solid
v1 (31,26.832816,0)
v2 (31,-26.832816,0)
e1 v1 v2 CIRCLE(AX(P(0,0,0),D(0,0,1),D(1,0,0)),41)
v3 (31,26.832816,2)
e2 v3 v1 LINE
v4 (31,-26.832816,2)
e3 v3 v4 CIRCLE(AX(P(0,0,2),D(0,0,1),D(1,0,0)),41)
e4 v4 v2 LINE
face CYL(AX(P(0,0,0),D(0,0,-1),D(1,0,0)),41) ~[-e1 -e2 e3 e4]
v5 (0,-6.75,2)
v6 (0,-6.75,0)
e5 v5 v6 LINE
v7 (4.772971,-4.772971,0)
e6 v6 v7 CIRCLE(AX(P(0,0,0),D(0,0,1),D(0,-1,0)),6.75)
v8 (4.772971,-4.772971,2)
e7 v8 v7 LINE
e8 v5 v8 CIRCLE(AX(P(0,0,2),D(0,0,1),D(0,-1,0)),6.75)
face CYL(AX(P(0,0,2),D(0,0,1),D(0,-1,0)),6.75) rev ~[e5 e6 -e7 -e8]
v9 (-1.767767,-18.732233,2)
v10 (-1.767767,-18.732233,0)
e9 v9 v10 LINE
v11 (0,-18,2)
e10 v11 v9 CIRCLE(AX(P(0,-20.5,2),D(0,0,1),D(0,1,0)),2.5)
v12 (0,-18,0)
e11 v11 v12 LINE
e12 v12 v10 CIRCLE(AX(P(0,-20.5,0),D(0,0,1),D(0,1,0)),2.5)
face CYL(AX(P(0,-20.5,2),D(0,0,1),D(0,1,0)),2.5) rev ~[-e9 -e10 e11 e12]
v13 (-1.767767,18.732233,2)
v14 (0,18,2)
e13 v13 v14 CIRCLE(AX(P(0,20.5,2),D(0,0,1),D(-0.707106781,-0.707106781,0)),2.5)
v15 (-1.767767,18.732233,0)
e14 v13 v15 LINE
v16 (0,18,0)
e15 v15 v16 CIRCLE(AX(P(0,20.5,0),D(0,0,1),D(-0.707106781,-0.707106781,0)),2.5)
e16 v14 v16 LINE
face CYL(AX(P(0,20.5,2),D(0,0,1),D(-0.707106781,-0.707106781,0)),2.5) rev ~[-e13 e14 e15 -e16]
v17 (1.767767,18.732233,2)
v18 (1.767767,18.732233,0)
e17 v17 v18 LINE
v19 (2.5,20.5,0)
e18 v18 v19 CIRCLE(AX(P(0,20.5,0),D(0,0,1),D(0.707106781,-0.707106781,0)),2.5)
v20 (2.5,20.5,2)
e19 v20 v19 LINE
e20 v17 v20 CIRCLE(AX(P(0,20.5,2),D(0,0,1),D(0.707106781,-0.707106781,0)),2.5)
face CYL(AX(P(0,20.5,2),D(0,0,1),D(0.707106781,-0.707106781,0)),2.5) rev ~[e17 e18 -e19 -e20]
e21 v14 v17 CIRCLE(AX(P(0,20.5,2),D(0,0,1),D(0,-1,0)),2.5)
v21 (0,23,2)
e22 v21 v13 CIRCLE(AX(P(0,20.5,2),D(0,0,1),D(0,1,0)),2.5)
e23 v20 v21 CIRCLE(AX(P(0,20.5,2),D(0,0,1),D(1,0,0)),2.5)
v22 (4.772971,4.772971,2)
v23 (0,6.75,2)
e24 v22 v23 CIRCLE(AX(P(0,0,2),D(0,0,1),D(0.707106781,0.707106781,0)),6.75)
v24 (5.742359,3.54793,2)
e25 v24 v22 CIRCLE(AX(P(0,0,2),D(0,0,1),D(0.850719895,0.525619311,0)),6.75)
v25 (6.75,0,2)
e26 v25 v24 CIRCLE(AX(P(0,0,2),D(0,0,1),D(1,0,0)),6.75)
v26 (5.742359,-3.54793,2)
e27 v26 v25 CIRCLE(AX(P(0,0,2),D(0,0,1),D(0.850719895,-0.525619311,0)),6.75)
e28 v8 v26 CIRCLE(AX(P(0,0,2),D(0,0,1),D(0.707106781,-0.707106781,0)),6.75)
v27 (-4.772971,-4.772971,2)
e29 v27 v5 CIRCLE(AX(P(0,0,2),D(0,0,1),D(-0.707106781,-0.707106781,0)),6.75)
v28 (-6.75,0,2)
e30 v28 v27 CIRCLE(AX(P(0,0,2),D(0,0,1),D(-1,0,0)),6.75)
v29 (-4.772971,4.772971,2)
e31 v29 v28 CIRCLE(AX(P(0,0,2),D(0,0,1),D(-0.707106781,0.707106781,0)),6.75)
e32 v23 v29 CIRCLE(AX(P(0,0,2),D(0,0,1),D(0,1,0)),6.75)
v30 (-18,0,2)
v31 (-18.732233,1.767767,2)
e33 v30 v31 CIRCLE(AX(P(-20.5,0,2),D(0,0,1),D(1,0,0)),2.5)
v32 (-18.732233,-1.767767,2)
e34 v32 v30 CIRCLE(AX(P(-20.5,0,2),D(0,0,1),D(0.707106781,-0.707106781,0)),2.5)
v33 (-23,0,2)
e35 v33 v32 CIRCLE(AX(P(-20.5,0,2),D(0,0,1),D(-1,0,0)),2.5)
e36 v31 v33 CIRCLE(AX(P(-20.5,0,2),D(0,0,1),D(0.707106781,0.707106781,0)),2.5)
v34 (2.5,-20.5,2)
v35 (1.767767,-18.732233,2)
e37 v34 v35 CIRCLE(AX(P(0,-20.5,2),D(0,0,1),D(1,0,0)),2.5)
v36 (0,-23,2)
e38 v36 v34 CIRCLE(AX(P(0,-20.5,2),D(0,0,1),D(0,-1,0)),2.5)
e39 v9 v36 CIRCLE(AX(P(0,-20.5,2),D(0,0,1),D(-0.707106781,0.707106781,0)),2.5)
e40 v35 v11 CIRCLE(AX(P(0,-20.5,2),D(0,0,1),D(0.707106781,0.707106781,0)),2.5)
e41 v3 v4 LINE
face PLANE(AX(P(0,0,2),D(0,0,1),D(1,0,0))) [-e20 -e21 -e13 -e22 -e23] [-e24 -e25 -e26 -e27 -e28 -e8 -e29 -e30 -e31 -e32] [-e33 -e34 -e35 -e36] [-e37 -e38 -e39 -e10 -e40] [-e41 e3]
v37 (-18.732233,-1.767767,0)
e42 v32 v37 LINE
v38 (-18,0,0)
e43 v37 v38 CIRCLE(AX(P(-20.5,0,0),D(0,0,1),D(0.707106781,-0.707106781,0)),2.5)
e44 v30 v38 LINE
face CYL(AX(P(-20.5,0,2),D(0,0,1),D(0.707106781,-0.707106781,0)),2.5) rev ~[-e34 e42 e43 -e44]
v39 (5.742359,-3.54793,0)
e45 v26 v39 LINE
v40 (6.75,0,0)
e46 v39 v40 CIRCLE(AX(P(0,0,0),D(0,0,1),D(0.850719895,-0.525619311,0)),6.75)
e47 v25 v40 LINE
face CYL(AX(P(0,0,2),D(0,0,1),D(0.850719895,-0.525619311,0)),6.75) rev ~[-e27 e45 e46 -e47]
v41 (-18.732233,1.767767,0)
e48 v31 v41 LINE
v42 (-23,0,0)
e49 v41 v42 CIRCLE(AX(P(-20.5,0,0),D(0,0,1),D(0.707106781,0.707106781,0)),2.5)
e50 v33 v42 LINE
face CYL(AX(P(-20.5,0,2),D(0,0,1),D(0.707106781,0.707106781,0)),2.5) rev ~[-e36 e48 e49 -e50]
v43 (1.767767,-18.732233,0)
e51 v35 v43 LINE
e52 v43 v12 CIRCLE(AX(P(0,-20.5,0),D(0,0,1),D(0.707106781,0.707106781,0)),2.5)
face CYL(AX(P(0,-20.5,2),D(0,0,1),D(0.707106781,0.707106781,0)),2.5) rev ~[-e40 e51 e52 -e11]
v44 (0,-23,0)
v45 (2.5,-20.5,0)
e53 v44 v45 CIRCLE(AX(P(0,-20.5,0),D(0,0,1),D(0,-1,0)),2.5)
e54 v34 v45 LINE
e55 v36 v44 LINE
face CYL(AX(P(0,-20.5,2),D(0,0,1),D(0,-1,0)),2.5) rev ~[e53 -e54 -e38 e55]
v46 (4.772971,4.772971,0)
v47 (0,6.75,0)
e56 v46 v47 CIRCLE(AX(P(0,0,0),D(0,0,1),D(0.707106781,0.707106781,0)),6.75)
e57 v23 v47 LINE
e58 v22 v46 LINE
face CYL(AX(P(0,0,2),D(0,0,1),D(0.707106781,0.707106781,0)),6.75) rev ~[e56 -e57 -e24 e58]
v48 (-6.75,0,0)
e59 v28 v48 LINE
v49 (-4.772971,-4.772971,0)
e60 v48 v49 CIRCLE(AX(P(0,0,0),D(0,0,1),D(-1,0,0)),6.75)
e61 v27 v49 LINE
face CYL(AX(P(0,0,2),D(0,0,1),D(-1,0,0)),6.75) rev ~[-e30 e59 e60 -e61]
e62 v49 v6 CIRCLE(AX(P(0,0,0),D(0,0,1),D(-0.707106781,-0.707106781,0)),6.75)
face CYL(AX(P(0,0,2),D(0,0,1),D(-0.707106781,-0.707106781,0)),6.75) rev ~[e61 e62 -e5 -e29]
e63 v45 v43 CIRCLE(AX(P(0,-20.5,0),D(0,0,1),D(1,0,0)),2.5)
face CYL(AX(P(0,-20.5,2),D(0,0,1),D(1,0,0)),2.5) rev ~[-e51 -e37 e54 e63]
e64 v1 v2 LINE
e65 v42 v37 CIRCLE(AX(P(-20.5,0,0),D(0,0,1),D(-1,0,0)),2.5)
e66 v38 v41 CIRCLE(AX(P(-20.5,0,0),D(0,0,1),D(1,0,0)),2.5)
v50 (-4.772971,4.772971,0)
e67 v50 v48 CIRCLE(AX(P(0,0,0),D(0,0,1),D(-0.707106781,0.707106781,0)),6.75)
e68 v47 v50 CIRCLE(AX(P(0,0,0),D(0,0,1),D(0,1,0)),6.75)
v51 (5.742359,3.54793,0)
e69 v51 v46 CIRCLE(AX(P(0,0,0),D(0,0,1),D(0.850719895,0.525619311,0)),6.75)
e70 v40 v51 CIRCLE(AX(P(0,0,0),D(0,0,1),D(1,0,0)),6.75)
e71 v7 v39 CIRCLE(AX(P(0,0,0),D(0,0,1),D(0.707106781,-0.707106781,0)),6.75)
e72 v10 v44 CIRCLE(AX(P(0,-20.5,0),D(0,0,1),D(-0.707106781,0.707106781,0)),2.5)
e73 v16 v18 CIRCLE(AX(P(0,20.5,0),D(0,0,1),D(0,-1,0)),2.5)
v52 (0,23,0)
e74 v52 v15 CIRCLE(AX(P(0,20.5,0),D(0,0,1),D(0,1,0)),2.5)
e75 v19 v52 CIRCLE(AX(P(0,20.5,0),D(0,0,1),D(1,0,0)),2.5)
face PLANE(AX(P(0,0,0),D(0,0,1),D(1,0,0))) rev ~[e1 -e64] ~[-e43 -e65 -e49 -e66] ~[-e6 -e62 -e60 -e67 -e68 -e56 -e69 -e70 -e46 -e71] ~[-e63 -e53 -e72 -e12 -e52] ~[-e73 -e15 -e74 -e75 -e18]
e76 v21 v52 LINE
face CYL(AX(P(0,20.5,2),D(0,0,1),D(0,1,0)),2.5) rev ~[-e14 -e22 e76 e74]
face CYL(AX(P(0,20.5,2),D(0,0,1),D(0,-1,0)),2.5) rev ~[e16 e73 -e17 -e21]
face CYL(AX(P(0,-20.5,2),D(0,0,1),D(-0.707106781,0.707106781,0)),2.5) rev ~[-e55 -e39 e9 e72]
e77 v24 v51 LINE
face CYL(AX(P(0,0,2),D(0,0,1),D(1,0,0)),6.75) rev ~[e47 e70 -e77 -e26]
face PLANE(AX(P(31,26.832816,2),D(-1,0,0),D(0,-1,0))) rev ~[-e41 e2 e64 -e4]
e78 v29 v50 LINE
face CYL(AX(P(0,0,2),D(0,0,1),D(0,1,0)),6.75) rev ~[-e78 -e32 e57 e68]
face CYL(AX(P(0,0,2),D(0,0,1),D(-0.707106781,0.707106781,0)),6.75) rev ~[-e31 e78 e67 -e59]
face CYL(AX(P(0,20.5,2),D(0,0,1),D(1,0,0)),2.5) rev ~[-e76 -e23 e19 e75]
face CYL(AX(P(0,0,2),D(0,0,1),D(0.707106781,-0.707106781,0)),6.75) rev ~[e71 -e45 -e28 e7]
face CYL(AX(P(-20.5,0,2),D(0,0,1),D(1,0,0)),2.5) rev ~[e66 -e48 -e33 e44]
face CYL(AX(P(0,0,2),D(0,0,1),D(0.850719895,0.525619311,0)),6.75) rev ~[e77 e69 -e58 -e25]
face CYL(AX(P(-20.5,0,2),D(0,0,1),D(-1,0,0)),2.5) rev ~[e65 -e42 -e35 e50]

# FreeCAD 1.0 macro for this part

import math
import FreeCAD as App
import Part
import Sketcher
from FreeCAD import Vector

doc = App.newDocument("Part")
body = doc.addObject("PartDesign::Body", "Body")

# Sketch on XY plane
sketch1 = body.newObject("Sketcher::SketchObject", "Sketch")
sketch1.AttachmentSupport = (doc.getObject("XY_Plane"), [""])
sketch1.MapMode = "FlatFace"
sketch1.addGeometry(Part.Circle(Vector(0, 0, 0), Vector(0, 0, 1), 41), False)
sketch1.addConstraint([
    Sketcher.Constraint("Coincident", 0, 3, -1, 1),
    Sketcher.Constraint("Diameter", 0, 82.0),
])
pad1 = body.newObject("PartDesign::Pad", "Pad")
pad1.Profile = sketch1
pad1.Length = 2

# Sketch on XY plane
sketch2 = body.newObject("Sketcher::SketchObject", "Sketch001")
sketch2.AttachmentSupport = (doc.getObject("XY_Plane"), [""])
sketch2.MapMode = "FlatFace"
sketch2.AttachmentOffset = App.Placement(Vector(0, 0, 2), App.Rotation())
sketch2.addGeometry([
    Part.ArcOfCircle(Part.Circle(Vector(-20.5, 0, 0), Vector(0, 0, 1), 2.5), math.radians(45), math.radians(180)),  # 0
    Part.ArcOfCircle(Part.Circle(Vector(-20.5, 0, 0), Vector(0, 0, 1), 2.5), math.radians(180), math.radians(315)),  # 1
    Part.ArcOfCircle(Part.Circle(Vector(-20.5, 0, 0), Vector(0, 0, 1), 2.5), math.radians(-45), math.radians(0)),  # 2
    Part.ArcOfCircle(Part.Circle(Vector(-20.5, 0, 0), Vector(0, 0, 1), 2.5), math.radians(0), math.radians(45)),  # 3
    Part.ArcOfCircle(Part.Circle(Vector(0, 20.5, 0), Vector(0, 0, 1), 2.5), math.radians(90), math.radians(225)),  # 4
    Part.ArcOfCircle(Part.Circle(Vector(0, 20.5, 0), Vector(0, 0, 1), 2.5), math.radians(-135), math.radians(-90)),  # 5
    Part.ArcOfCircle(Part.Circle(Vector(0, 20.5, 0), Vector(0, 0, 1), 2.5), math.radians(-90), math.radians(-45)),  # 6
    Part.ArcOfCircle(Part.Circle(Vector(0, 20.5, 0), Vector(0, 0, 1), 2.5), math.radians(-45), math.radians(0)),  # 7
    Part.ArcOfCircle(Part.Circle(Vector(0, 20.5, 0), Vector(0, 0, 1), 2.5), math.radians(0), math.radians(90)),  # 8
    Part.ArcOfCircle(Part.Circle(Vector(0, 0, 0), Vector(0, 0, 1), 6.7), math.radians(90), math.radians(135)),  # 9
    Part.ArcOfCircle(Part.Circle(Vector(0, 0, 0), Vector(0, 0, 1), 6.7), math.radians(135), math.radians(180)),  # 10
    Part.ArcOfCircle(Part.Circle(Vector(0, 0, 0), Vector(0, 0, 1), 6.7), math.radians(180), math.radians(225)),  # 11
    Part.ArcOfCircle(Part.Circle(Vector(0, 0, 0), Vector(0, 0, 1), 6.7), math.radians(-135), math.radians(-90)),  # 12
    Part.ArcOfCircle(Part.Circle(Vector(0, 0, 0), Vector(0, 0, 1), 6.7), math.radians(-90), math.radians(-45)),  # 13
    Part.ArcOfCircle(Part.Circle(Vector(0, 0, 0), Vector(0, 0, 1), 6.7), math.radians(-45), math.radians(-31.71)),  # 14
    Part.ArcOfCircle(Part.Circle(Vector(0, 0, 0), Vector(0, 0, 1), 6.8), math.radians(-32), math.radians(0)),  # 15
    Part.ArcOfCircle(Part.Circle(Vector(0, 0, 0), Vector(0, 0, 1), 6.8), math.radians(0), math.radians(32)),  # 16
    Part.ArcOfCircle(Part.Circle(Vector(0, 0, 0), Vector(0, 0, 1), 6.7), math.radians(31.71), math.radians(45)),  # 17
    Part.ArcOfCircle(Part.Circle(Vector(0, 0, 0), Vector(0, 0, 1), 6.7), math.radians(45), math.radians(90)),  # 18
    Part.ArcOfCircle(Part.Circle(Vector(0, -20.5, 0), Vector(0, 0, 1), 2.5), math.radians(45), math.radians(90)),  # 19
    Part.ArcOfCircle(Part.Circle(Vector(0, -20.5, 0), Vector(0, 0, 1), 2.5), math.radians(90), math.radians(135)),  # 20
    Part.ArcOfCircle(Part.Circle(Vector(0, -20.5, 0), Vector(0, 0, 1), 2.5), math.radians(135), math.radians(270)),  # 21
    Part.ArcOfCircle(Part.Circle(Vector(0, -20.5, 0), Vector(0, 0, 1), 2.5), math.radians(-90), math.radians(0)),  # 22
    Part.ArcOfCircle(Part.Circle(Vector(0, -20.5, 0), Vector(0, 0, 1), 2.5), math.radians(0), math.radians(45)),  # 23
    Part.ArcOfCircle(Part.Circle(Vector(0, 0, 0), Vector(0, 0, 1), 41), math.radians(-41), math.radians(0)),  # 24
    Part.ArcOfCircle(Part.Circle(Vector(0, 0, 0), Vector(0, 0, 1), 41), math.radians(0), math.radians(41)),  # 25
    Part.LineSegment(Vector(31, 26.8, 0), Vector(31, -26.8, 0)),  # 26
], False)
sketch2.addConstraint([
    Sketcher.Constraint("Tangent", 0, 2, 1, 1),
    Sketcher.Constraint("Tangent", 1, 2, 2, 1),
    Sketcher.Constraint("Tangent", 2, 2, 3, 1),
    Sketcher.Constraint("Tangent", 3, 2, 0, 1),
    Sketcher.Constraint("Tangent", 4, 2, 5, 1),
    Sketcher.Constraint("Tangent", 5, 2, 6, 1),
    Sketcher.Constraint("Tangent", 6, 2, 7, 1),
    Sketcher.Constraint("Tangent", 7, 2, 8, 1),
    Sketcher.Constraint("Tangent", 8, 2, 4, 1),
    Sketcher.Constraint("Tangent", 9, 2, 10, 1),
    Sketcher.Constraint("Tangent", 10, 2, 11, 1),
    Sketcher.Constraint("Tangent", 11, 2, 12, 1),
    Sketcher.Constraint("Tangent", 12, 2, 13, 1),
    Sketcher.Constraint("Tangent", 13, 2, 14, 1),
    Sketcher.Constraint("Tangent", 14, 2, 15, 1),
    Sketcher.Constraint("Tangent", 15, 2, 16, 1),
    Sketcher.Constraint("Tangent", 16, 2, 17, 1),
    Sketcher.Constraint("Tangent", 17, 2, 18, 1),
    Sketcher.Constraint("Tangent", 18, 2, 9, 1),
    Sketcher.Constraint("Tangent", 19, 2, 20, 1),
    Sketcher.Constraint("Tangent", 20, 2, 21, 1),
    Sketcher.Constraint("Tangent", 21, 2, 22, 1),
    Sketcher.Constraint("Tangent", 22, 2, 23, 1),
    Sketcher.Constraint("Tangent", 23, 2, 19, 1),
    Sketcher.Constraint("Tangent", 24, 2, 25, 1),
    Sketcher.Constraint("Coincident", 25, 2, 26, 1),
    Sketcher.Constraint("Coincident", 26, 2, 24, 1),
    Sketcher.Constraint("Vertical", 26),
    Sketcher.Constraint("Coincident", 9, 3, -1, 1),
    Sketcher.Constraint("Coincident", 11, 3, -1, 1),
    Sketcher.Constraint("Coincident", 13, 3, -1, 1),
    Sketcher.Constraint("Coincident", 15, 3, -1, 1),
    Sketcher.Constraint("Coincident", 24, 3, -1, 1),
    Sketcher.Constraint("Coincident", 6, 3, 4, 3),
    Sketcher.Constraint("Coincident", 21, 3, 19, 3),
    Sketcher.Constraint("Equal", 0, 1),
    Sketcher.Constraint("Equal", 3, 4),
    Sketcher.Constraint("Equal", 15, 16),
    Sketcher.Constraint("Equal", 8, 19),
    Sketcher.Constraint("Equal", 24, 25),
    Sketcher.Constraint("Symmetric", 4, 3, 19, 3, -1, 1),
    Sketcher.Constraint("Symmetric", 4, 2, 6, 2, -2),
    Sketcher.Constraint("Symmetric", 1, 2, 3, 2, -1),
    Sketcher.Constraint("PointOnObject", 0, 2, -1),
    Sketcher.Constraint("PointOnObject", 2, 2, -1),
    Sketcher.Constraint("PointOnObject", 5, 2, -2),
    Sketcher.Constraint("PointOnObject", 8, 2, -2),
    Sketcher.Constraint("PointOnObject", 10, 2, -1),
    Sketcher.Constraint("PointOnObject", 12, 2, -2),
    Sketcher.Constraint("PointOnObject", 15, 2, -1),
    Sketcher.Constraint("PointOnObject", 18, 2, -2),
    Sketcher.Constraint("PointOnObject", 19, 2, -2),
    Sketcher.Constraint("PointOnObject", 21, 2, -2),
    Sketcher.Constraint("PointOnObject", 24, 2, -1),
    Sketcher.Constraint("Horizontal", 8, 3, 7, 2),
    Sketcher.Constraint("Horizontal", 11, 2, 13, 2),
    Sketcher.Constraint("Horizontal", 9, 2, 17, 2),
    Sketcher.Constraint("Horizontal", 23, 3, 22, 2),
    Sketcher.Constraint("Horizontal", 20, 2, 23, 2),
    Sketcher.Constraint("Vertical", 9, 2, 11, 2),
    Sketcher.Constraint("Vertical", 14, 2, 16, 2),
    Sketcher.Constraint("Vertical", 4, 2, 20, 2),
    Sketcher.Constraint("Radius", 24, 41.0),
    Sketcher.Constraint("Radius", 0, 2.5),
    Sketcher.Constraint("Radius", 9, 6.75),
    Sketcher.Constraint("DistanceX", 0, 2, -1, 1, 23.0),
    Sketcher.Constraint("DistanceY", -1, 1, 5, 2, 18.0),
    Sketcher.Constraint("DistanceX", -1, 1, 25, 2, 31.0),
    Sketcher.Constraint("DistanceX", 9, 2, -1, 1, 4.772971),
    Sketcher.Constraint("DistanceX", -1, 1, 14, 2, 5.742359),
    Sketcher.Constraint("DistanceX", 1, 2, -1, 1, 18.732233),
    Sketcher.Constraint("DistanceX", 4, 2, -1, 1, 1.767767),
])
pocket1 = body.newObject("PartDesign::Pocket", "Pocket")
pocket1.Profile = sketch2
pocket1.Type = "ThroughAll"

doc.recompute()
